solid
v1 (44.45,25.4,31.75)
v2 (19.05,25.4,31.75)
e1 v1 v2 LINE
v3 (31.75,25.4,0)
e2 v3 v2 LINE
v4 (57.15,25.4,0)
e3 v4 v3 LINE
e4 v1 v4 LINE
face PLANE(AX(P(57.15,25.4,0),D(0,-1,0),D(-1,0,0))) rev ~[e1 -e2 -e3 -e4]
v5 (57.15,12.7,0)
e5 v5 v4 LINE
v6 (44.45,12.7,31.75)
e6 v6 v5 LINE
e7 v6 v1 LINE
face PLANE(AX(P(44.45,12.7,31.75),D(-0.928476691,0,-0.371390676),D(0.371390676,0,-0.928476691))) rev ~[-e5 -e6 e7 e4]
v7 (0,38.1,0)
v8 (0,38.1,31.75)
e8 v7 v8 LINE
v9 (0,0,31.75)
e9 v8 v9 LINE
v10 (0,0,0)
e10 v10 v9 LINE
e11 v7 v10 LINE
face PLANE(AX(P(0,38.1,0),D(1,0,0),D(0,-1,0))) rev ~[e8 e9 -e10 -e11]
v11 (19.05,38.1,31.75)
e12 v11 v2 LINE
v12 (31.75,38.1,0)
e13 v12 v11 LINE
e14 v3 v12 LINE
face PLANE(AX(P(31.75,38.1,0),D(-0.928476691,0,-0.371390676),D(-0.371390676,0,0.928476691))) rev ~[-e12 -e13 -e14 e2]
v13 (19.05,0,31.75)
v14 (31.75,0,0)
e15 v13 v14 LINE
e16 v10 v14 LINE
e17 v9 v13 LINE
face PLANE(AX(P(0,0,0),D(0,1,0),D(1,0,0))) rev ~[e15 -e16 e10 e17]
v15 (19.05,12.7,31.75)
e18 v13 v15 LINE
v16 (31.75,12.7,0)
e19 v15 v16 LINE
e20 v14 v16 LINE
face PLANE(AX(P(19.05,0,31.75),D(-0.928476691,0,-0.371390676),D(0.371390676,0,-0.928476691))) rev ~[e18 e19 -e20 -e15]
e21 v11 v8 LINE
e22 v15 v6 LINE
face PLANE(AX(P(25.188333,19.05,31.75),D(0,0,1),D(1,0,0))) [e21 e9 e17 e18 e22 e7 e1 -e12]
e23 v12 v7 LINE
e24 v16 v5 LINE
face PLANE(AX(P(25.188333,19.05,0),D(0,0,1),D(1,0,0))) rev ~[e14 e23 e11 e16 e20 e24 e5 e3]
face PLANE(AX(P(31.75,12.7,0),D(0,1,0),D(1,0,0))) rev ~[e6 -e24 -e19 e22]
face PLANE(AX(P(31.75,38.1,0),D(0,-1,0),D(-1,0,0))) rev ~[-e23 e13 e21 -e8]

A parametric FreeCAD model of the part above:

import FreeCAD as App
import Part
import Sketcher

V = App.Vector
Q = App.Units.Quantity

doc = App.newDocument("Part")
body = doc.addObject("PartDesign::Body", "Body")

# Sketch on XY plane
sketch1 = doc.addObject("Sketcher::SketchObject", "Sketch")
body.addObject(sketch1)
sketch1.AttachmentSupport = (doc.XY_Plane, [""])
sketch1.MapMode = "FlatFace"
sketch1.addGeometry(Part.LineSegment(V(0, 38, 0), V(0, 0, 0)), False)
sketch1.addGeometry(Part.LineSegment(V(0, 0, 0), V(32, 0, 0)), False)
sketch1.addGeometry(Part.LineSegment(V(32, 0, 0), V(32, 13, 0)), False)
sketch1.addGeometry(Part.LineSegment(V(32, 13, 0), V(57, 13, 0)), False)
sketch1.addGeometry(Part.LineSegment(V(57, 13, 0), V(57, 25, 0)), False)
sketch1.addGeometry(Part.LineSegment(V(57, 25, 0), V(32, 25, 0)), False)
sketch1.addGeometry(Part.LineSegment(V(32, 25, 0), V(32, 38, 0)), False)
sketch1.addGeometry(Part.LineSegment(V(32, 38, 0), V(0, 38, 0)), False)
sketch1.addConstraint(Sketcher.Constraint("Coincident", 0, 2, 1, 1))
sketch1.addConstraint(Sketcher.Constraint("Coincident", 1, 2, 2, 1))
sketch1.addConstraint(Sketcher.Constraint("Coincident", 2, 2, 3, 1))
sketch1.addConstraint(Sketcher.Constraint("Coincident", 3, 2, 4, 1))
sketch1.addConstraint(Sketcher.Constraint("Coincident", 4, 2, 5, 1))
sketch1.addConstraint(Sketcher.Constraint("Coincident", 5, 2, 6, 1))
sketch1.addConstraint(Sketcher.Constraint("Coincident", 6, 2, 7, 1))
sketch1.addConstraint(Sketcher.Constraint("Coincident", 7, 2, 0, 1))
sketch1.addConstraint(Sketcher.Constraint("Vertical", 0))
sketch1.addConstraint(Sketcher.Constraint("Horizontal", 1))
sketch1.addConstraint(Sketcher.Constraint("Vertical", 2))
sketch1.addConstraint(Sketcher.Constraint("Horizontal", 3))
sketch1.addConstraint(Sketcher.Constraint("Vertical", 4))
sketch1.addConstraint(Sketcher.Constraint("Horizontal", 5))
sketch1.addConstraint(Sketcher.Constraint("Vertical", 6))
sketch1.addConstraint(Sketcher.Constraint("Horizontal", 7))
sketch1.addConstraint(Sketcher.Constraint("Coincident", 0, 2, -1, 1))
sketch1.addConstraint(Sketcher.Constraint("Vertical", 2, 2, 5, 2))
sketch1.addConstraint(Sketcher.Constraint("Equal", 2, 4))
sketch1.addConstraint(Sketcher.Constraint("Equal", 4, 6))
sketch1.addConstraint(Sketcher.Constraint("DistanceX", 3, 1, 3, 2, Q("1 in")))
sketch1.addConstraint(Sketcher.Constraint("DistanceY", 0, 2, 0, 1, Q("1.5 in")))
sketch1.addConstraint(Sketcher.Constraint("DistanceX", 1, 1, 1, 2, Q("1.25 in")))
pad1 = doc.addObject("PartDesign::Pad", "Pad")
body.addObject(pad1)
pad1.Profile = sketch1
pad1.Length = Q("1.25 in")

# Sketch on XZ plane
sketch2 = doc.addObject("Sketcher::SketchObject", "Sketch001")
body.addObject(sketch2)
sketch2.AttachmentSupport = (doc.XZ_Plane, [""])
sketch2.MapMode = "FlatFace"
sketch2.addGeometry(Part.LineSegment(V(32, 32, 0), V(19, 32, 0)), False)
sketch2.addGeometry(Part.LineSegment(V(19, 32, 0), V(32, 0, 0)), False)
sketch2.addGeometry(Part.LineSegment(V(32, 0, 0), V(32, 32, 0)), False)
sketch2.addConstraint(Sketcher.Constraint("Coincident", 0, 2, 1, 1))
sketch2.addConstraint(Sketcher.Constraint("Coincident", 1, 2, 2, 1))
sketch2.addConstraint(Sketcher.Constraint("Coincident", 2, 2, 0, 1))
sketch2.addConstraint(Sketcher.Constraint("Horizontal", 0))
sketch2.addConstraint(Sketcher.Constraint("Vertical", 2))
sketch2.addConstraint(Sketcher.Constraint("PointOnObject", 1, 2, -1))
sketch2.addConstraint(Sketcher.Constraint("DistanceX", 0, 2, 0, 1, Q("0.5 in")))
sketch2.addConstraint(Sketcher.Constraint("DistanceY", 2, 1, 2, 2, Q("1.25 in")))
sketch2.addConstraint(Sketcher.Constraint("DistanceX", -1, 1, 0, 2, Q("0.75 in")))
pocket1 = doc.addObject("PartDesign::Pocket", "Pocket")
body.addObject(pocket1)
pocket1.Profile = sketch2
pocket1.Length = Q("0.5 in")

# Sketch on XZ plane
sketch3 = doc.addObject("Sketcher::SketchObject", "Sketch002")
body.addObject(sketch3)
sketch3.AttachmentSupport = (doc.XZ_Plane, [""])
sketch3.MapMode = "FlatFace"
sketch3.AttachmentOffset = App.Placement(V(0, 0, -0.5 * 25.4), App.Rotation())
sketch3.addGeometry(Part.LineSegment(V(57, 32, 0), V(44, 32, 0)), False)
sketch3.addGeometry(Part.LineSegment(V(44, 32, 0), V(57, 0, 0)), False)
sketch3.addGeometry(Part.LineSegment(V(57, 0, 0), V(57, 32, 0)), False)
sketch3.addConstraint(Sketcher.Constraint("Coincident", 0, 2, 1, 1))
sketch3.addConstraint(Sketcher.Constraint("Coincident", 1, 2, 2, 1))
sketch3.addConstraint(Sketcher.Constraint("Coincident", 2, 2, 0, 1))
sketch3.addConstraint(Sketcher.Constraint("Horizontal", 0))
sketch3.addConstraint(Sketcher.Constraint("Vertical", 2))
sketch3.addConstraint(Sketcher.Constraint("PointOnObject", 1, 2, -1))
sketch3.addConstraint(Sketcher.Constraint("DistanceX", 0, 2, 0, 1, Q("0.5 in")))
sketch3.addConstraint(Sketcher.Constraint("DistanceY", 2, 1, 2, 2, Q("1.25 in")))
sketch3.addConstraint(Sketcher.Constraint("DistanceX", -1, 1, 0, 2, Q("1.75 in")))
pocket2 = doc.addObject("PartDesign::Pocket", "Pocket001")
body.addObject(pocket2)
pocket2.Profile = sketch3
pocket2.Length = Q("0.5 in")

# Sketch on XZ plane
sketch4 = doc.addObject("Sketcher::SketchObject", "Sketch003")
body.addObject(sketch4)
sketch4.AttachmentSupport = (doc.XZ_Plane, [""])
sketch4.MapMode = "FlatFace"
sketch4.AttachmentOffset = App.Placement(V(0, 0, -1.5 * 25.4), App.Rotation())
sketch4.addGeometry(Part.LineSegment(V(32, 0, 0), V(19, 32, 0)), False)
sketch4.addGeometry(Part.LineSegment(V(19, 32, 0), V(32, 32, 0)), False)
sketch4.addGeometry(Part.LineSegment(V(32, 32, 0), V(32, 0, 0)), False)
sketch4.addConstraint(Sketcher.Constraint("Coincident", 0, 2, 1, 1))
sketch4.addConstraint(Sketcher.Constraint("Coincident", 1, 2, 2, 1))
sketch4.addConstraint(Sketcher.Constraint("Coincident", 2, 2, 0, 1))
sketch4.addConstraint(Sketcher.Constraint("Horizontal", 1))
sketch4.addConstraint(Sketcher.Constraint("Vertical", 2))
sketch4.addConstraint(Sketcher.Constraint("PointOnObject", 2, 2, -1))
sketch4.addConstraint(Sketcher.Constraint("DistanceX", 1, 1, 1, 2, Q("0.5 in")))
sketch4.addConstraint(Sketcher.Constraint("DistanceY", 2, 2, 2, 1, Q("1.25 in")))
sketch4.addConstraint(Sketcher.Constraint("DistanceX", -1, 1, 0, 2, Q("0.75 in")))
pocket3 = doc.addObject("PartDesign::Pocket", "Pocket002")
body.addObject(pocket3)
pocket3.Profile = sketch4
pocket3.Length = Q("0.5 in")
pocket3.Reversed = True

# Sketch on XZ plane
sketch5 = doc.addObject("Sketcher::SketchObject", "Sketch004")
body.addObject(sketch5)
sketch5.AttachmentSupport = (doc.XZ_Plane, [""])
sketch5.MapMode = "FlatFace"
sketch5.AttachmentOffset = App.Placement(V(0, 0, -0.5 * 25.4), App.Rotation())
sketch5.addGeometry(Part.LineSegment(V(57, 32, 0), V(44, 32, 0)), False)
sketch5.addGeometry(Part.LineSegment(V(44, 32, 0), V(57, 0, 0)), False)
sketch5.addGeometry(Part.LineSegment(V(57, 0, 0), V(57, 32, 0)), False)
sketch5.addConstraint(Sketcher.Constraint("Coincident", 0, 2, 1, 1))
sketch5.addConstraint(Sketcher.Constraint("Coincident", 1, 2, 2, 1))
sketch5.addConstraint(Sketcher.Constraint("Coincident", 2, 2, 0, 1))
sketch5.addConstraint(Sketcher.Constraint("Horizontal", 0))
sketch5.addConstraint(Sketcher.Constraint("Vertical", 2))
sketch5.addConstraint(Sketcher.Constraint("PointOnObject", 1, 2, -1))
sketch5.addConstraint(Sketcher.Constraint("DistanceX", 0, 2, 0, 1, Q("0.5 in")))
sketch5.addConstraint(Sketcher.Constraint("DistanceY", 2, 1, 2, 2, Q("1.25 in")))
sketch5.addConstraint(Sketcher.Constraint("DistanceX", -1, 1, 0, 2, Q("1.75 in")))
pocket4 = doc.addObject("PartDesign::Pocket", "Pocket003")
body.addObject(pocket4)
pocket4.Profile = sketch5
pocket4.Length = Q("1 in")

doc.recompute()
